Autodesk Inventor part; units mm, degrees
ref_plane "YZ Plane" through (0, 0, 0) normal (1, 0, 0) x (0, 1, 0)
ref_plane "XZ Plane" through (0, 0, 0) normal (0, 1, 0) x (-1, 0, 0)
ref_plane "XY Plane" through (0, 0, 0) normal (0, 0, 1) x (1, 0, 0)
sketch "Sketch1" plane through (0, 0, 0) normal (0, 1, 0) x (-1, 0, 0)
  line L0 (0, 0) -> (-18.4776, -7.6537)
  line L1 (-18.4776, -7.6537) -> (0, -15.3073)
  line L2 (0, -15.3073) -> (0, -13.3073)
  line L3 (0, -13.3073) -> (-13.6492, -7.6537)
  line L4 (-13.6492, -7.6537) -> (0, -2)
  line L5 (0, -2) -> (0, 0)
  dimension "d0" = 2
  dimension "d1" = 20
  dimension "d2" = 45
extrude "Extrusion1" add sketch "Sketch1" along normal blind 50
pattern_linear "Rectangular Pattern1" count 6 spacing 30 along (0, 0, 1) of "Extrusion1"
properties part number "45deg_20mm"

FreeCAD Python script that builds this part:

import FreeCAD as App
import Part
import Sketcher
Q = App.Units.Quantity


def add_polygon(sketch, points):
    """Adds a closed chain of lines whose ends are joined by coincident constraints."""
    first, n = sketch.GeometryCount, len(points)
    for a, b in zip(points, points[1:] + points[:1]):
        sketch.addGeometry(Part.LineSegment(App.Vector(*a, 0), App.Vector(*b, 0)), False)
    for i in range(n):
        sketch.addConstraint(Sketcher.Constraint("Coincident", first + i, 2, first + (i + 1) % n, 1))

doc = App.newDocument("Part")
params = doc.addObject("Spreadsheet::Sheet", "Params")
for row, (alias, value) in enumerate([
    ("sketch1_height", "2 mm"),
    ("sketch1_length", "20 mm"),
    ("pad1_length", "50 mm"),
    ("linearpattern_pitch", "30 mm"),
], start=1):
    params.set(f"A{row}", alias)
    params.set(f"B{row}", "=" + value)
    params.setAlias(f"B{row}", alias)

body = doc.addObject("PartDesign::Body", "Body")
body.AllowCompound = True

# Sketch on XZ plane
sketch1 = doc.addObject("Sketcher::SketchObject", "Sketch")
body.addObject(sketch1)
sketch1.AttachmentSupport = (doc.XZ_Plane, [""])
sketch1.MapMode = "FlatFace"
add_polygon(sketch1, [(0, -2), (0, 0), (18.5, -7.7), (0, -15.3), (0, -13.3), (13.6, -7.7)])  # lines 0-5
sketch1.addConstraint(Sketcher.Constraint("Vertical", 0))
sketch1.addConstraint(Sketcher.Constraint("Vertical", 3))
sketch1.addConstraint(Sketcher.Constraint("Coincident", 0, 2, -1, 1))
sketch1.addConstraint(Sketcher.Constraint("PointOnObject", 2, 2, -2))
sketch1.addConstraint(Sketcher.Constraint("Parallel", 2, 4))
sketch1.addConstraint(Sketcher.Constraint("Parallel", 1, 5))
sketch1.addConstraint(Sketcher.Constraint("Horizontal", 1, 2, 4, 2))
sketch1.addConstraint(Sketcher.Constraint("Equal", 0, 3))
sketch1.addConstraint(Sketcher.Constraint("DistanceY", 0, 1, 0, 2, 2.0))
sketch1.addConstraint(Sketcher.Constraint("Distance", 1, 20.0))
sketch1.addConstraint(Sketcher.Constraint("Angle", 1, Q("-22.5 deg")))
sketch1.setExpression("Constraints[14]", "Params.sketch1_height")
sketch1.setExpression("Constraints[15]", "Params.sketch1_length")
pad1 = doc.addObject("PartDesign::Pad", "Pad")
body.addObject(pad1)
pad1.Profile = sketch1
pad1.setExpression("Length", "Params.pad1_length")
pad1.Reversed = True
doc.recompute()

linearpattern = doc.addObject("PartDesign::LinearPattern", "LinearPattern")
body.addObject(linearpattern)
linearpattern.Originals = [pad1]
linearpattern.Direction = (doc.Z_Axis, [""])
linearpattern.Mode = "offset"
linearpattern.setExpression("Offset", "Params.linearpattern_pitch")
linearpattern.Occurrences = 6
body.Tip = linearpattern

doc.recompute()
